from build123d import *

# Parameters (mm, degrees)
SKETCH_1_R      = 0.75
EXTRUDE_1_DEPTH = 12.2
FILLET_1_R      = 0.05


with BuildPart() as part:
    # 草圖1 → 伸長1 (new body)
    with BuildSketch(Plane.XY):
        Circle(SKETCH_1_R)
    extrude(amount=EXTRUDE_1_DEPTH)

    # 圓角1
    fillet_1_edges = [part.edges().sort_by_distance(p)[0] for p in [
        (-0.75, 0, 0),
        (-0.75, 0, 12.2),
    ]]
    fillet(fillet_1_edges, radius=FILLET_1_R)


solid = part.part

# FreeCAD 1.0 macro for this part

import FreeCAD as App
import Part
import Sketcher

V = App.Vector
Q = App.Units.Quantity


def edges_at(feature, points):
    """Names of the edges that pass closest to the given points."""
    edges = feature.Shape.Edges
    near = lambda p: min(range(len(edges)), key=lambda i: edges[i].distToShape(Part.Vertex(*p))[0])
    return sorted({f"Edge{near(p) + 1}" for p in points})

doc = App.newDocument("Part")
body = doc.addObject("PartDesign::Body", "Body")

# Sketch on XY plane
sketch1 = doc.addObject("Sketcher::SketchObject", "Sketch")
body.addObject(sketch1)
sketch1.AttachmentSupport = (doc.XY_Plane, [""])
sketch1.MapMode = "FlatFace"
sketch1.addGeometry(Part.Circle(V(0, 0, 0), V(0, 0, 1), 0.8), False)
sketch1.addConstraint(Sketcher.Constraint("Coincident", 0, 3, -1, 1))
sketch1.addConstraint(Sketcher.Constraint("Diameter", 0, Q("1.5 mm")))
pad1 = doc.addObject("PartDesign::Pad", "Pad")
body.addObject(pad1)
pad1.Profile = sketch1
pad1.Length = 12.2
doc.recompute()

fillet = doc.addObject("PartDesign::Fillet", "Fillet")
body.addObject(fillet)
fillet.Base = (pad1, edges_at(pad1, [(-0.75, 0, 0), (-0.75, 0, 12.2)]))
fillet.Radius = 0.05

doc.recompute()
